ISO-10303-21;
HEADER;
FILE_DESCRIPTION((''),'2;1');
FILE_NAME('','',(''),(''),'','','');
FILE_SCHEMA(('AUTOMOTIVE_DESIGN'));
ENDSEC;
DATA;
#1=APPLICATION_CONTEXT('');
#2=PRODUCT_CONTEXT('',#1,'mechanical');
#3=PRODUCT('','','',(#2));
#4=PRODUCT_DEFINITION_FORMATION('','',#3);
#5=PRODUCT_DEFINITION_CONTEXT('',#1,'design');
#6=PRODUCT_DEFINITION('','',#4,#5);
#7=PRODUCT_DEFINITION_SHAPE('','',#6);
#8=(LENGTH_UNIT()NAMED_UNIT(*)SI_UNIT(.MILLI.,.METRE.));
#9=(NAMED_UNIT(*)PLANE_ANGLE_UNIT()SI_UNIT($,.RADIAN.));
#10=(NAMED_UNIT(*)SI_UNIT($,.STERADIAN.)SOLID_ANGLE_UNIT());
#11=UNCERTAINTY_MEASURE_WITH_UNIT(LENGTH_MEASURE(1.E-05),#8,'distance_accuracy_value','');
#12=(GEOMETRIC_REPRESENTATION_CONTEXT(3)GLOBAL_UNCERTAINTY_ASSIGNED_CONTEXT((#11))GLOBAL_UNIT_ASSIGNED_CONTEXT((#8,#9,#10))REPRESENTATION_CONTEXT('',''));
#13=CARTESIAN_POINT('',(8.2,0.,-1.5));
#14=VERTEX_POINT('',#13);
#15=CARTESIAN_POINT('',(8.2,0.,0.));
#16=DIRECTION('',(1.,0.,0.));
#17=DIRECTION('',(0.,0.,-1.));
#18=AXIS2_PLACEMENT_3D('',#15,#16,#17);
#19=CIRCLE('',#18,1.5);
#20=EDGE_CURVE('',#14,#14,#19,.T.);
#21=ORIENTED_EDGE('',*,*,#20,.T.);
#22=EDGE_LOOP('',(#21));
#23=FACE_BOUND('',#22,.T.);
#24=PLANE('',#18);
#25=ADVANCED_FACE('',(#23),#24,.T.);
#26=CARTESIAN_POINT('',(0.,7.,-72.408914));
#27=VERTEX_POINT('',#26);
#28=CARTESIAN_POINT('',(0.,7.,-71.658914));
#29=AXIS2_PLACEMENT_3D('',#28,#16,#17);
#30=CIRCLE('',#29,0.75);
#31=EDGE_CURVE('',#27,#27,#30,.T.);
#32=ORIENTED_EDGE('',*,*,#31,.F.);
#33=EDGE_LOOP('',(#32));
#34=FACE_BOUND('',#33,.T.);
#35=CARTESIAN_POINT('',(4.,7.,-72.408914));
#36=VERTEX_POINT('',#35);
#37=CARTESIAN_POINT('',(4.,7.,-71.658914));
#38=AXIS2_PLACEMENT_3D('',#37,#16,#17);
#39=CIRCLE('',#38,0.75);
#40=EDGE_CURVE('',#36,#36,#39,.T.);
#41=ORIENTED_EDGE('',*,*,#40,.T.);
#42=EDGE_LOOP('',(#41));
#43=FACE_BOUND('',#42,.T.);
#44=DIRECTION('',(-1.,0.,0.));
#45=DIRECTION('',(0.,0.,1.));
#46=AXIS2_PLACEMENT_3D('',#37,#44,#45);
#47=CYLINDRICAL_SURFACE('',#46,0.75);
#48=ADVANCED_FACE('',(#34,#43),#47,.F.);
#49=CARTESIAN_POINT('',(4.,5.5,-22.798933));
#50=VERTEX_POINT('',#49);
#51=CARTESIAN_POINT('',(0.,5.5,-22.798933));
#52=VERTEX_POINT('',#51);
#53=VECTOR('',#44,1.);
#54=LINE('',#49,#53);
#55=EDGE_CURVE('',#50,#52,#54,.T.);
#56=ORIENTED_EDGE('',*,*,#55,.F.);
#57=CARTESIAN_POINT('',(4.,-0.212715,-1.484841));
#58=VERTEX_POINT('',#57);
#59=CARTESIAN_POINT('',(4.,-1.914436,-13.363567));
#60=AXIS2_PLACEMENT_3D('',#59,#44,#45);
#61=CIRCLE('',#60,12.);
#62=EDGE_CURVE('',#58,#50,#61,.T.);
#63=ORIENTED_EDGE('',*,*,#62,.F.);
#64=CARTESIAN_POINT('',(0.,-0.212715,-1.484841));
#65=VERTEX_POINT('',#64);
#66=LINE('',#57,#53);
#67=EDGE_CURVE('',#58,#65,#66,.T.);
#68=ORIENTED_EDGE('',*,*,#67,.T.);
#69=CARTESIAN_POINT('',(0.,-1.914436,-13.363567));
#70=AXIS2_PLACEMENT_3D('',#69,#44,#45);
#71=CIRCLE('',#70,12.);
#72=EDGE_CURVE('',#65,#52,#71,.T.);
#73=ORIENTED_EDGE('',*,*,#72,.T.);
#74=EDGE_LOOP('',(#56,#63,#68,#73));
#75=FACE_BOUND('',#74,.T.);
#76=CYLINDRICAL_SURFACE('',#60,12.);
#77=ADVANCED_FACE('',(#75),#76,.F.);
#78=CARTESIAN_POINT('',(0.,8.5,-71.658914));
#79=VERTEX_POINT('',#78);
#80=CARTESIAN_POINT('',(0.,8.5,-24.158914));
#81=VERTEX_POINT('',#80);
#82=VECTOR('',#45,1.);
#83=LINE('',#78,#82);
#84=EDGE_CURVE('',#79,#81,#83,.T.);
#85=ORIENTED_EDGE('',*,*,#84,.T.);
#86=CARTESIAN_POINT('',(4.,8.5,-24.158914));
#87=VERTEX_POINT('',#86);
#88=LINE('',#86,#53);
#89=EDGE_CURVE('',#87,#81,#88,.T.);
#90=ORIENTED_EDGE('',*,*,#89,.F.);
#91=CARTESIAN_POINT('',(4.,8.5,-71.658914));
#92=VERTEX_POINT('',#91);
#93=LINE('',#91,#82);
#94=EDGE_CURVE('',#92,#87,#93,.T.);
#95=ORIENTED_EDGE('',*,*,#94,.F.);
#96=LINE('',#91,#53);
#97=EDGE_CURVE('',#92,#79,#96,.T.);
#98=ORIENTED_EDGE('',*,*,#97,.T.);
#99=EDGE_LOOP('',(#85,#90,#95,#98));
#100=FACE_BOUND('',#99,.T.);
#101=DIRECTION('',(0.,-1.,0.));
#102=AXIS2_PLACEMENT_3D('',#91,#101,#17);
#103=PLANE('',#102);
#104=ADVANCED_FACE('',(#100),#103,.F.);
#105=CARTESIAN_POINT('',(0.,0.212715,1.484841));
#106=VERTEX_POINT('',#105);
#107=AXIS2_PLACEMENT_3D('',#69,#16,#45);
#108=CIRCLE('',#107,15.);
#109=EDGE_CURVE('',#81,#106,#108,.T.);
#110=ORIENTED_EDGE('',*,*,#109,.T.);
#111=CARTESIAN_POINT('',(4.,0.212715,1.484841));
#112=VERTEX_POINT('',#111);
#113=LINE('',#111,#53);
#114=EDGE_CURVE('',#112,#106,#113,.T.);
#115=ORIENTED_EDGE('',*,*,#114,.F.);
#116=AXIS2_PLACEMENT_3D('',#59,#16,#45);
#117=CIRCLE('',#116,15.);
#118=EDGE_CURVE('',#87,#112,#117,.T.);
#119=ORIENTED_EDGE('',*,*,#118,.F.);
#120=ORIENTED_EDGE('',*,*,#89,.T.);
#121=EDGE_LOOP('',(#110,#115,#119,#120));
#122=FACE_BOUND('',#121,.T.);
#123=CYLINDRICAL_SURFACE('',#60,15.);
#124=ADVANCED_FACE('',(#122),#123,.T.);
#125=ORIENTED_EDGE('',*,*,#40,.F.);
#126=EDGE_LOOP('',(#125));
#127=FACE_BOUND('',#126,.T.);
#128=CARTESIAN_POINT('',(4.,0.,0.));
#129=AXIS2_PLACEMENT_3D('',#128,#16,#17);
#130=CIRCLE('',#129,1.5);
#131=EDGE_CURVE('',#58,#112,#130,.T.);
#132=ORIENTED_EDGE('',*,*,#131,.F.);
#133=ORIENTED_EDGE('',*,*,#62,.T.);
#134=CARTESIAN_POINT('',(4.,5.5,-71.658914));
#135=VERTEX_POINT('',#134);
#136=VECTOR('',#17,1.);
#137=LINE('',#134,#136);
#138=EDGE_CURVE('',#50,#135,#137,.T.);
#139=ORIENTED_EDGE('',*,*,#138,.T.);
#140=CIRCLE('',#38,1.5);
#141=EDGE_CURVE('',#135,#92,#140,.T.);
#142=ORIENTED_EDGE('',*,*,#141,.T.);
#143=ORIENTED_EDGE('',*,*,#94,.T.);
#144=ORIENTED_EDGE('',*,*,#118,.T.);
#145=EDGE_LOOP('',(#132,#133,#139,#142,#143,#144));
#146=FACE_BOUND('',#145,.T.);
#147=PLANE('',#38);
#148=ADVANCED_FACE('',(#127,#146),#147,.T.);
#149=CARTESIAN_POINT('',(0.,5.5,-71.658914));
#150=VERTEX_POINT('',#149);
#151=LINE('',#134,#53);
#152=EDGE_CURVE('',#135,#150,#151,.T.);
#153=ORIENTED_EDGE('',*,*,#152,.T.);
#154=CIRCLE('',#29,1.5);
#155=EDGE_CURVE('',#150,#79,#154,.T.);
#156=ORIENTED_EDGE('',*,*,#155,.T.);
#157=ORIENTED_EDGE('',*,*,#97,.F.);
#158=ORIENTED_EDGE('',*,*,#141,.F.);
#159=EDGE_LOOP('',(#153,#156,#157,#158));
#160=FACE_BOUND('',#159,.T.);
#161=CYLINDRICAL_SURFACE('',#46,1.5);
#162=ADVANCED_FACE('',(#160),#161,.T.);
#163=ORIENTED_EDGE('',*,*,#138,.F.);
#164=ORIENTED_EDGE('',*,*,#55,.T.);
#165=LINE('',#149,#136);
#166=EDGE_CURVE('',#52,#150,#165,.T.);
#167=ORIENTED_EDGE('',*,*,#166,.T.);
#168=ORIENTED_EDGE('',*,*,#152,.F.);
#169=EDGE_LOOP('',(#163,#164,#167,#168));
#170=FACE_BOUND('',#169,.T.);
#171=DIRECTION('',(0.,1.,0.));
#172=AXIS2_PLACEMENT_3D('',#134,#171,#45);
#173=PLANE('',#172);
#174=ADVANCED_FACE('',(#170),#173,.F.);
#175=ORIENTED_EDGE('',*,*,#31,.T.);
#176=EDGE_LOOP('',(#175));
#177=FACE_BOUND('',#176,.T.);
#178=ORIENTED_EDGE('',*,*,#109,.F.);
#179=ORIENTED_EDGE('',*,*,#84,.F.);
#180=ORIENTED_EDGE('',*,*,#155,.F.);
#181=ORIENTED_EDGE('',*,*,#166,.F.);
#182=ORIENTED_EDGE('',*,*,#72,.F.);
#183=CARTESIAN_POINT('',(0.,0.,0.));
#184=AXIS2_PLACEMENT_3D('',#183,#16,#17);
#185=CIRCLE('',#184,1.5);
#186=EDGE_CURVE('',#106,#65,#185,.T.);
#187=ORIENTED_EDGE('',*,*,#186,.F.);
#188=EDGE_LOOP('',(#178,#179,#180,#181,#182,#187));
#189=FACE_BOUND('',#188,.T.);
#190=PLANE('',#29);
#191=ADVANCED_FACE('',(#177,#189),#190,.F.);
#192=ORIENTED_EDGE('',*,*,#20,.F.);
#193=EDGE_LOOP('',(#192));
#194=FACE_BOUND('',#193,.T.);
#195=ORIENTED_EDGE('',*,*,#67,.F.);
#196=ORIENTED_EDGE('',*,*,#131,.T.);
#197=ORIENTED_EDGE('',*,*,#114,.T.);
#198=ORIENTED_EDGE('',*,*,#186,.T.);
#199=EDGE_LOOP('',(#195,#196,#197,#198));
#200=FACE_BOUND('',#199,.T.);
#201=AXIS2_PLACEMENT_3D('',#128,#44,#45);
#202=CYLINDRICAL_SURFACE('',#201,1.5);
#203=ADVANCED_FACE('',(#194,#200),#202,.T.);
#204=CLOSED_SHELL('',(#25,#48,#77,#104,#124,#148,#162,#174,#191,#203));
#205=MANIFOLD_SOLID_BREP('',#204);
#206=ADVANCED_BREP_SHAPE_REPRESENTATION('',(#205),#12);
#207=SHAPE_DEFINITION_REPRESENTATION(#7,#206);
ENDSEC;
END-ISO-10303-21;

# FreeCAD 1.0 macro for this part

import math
import FreeCAD as App
import Part
import Sketcher
from FreeCAD import Vector

doc = App.newDocument("Part")
body = doc.addObject("PartDesign::Body", "Body")

# Sketch on YZ plane
sketch1 = doc.addObject("Sketcher::SketchObject", "Sketch")
body.addObject(sketch1)
sketch1.AttachmentSupport = (doc.YZ_Plane, [""])
sketch1.MapMode = "FlatFace"
sketch1.addGeometry([
    Part.LineSegment(Vector(8.5, -71.7, 0), Vector(8.5, -24.2, 0)),  # 0
    Part.ArcOfCircle(Part.Circle(Vector(-1.9, -13.4, 0), Vector(0, 0, 1), 15), math.radians(-46), math.radians(82)),  # 1
    Part.ArcOfCircle(Part.Circle(Vector(0, 0, 0), Vector(0, 0, 1), 1.5), math.radians(82), math.radians(262)),  # 2
    Part.ArcOfCircle(Part.Circle(Vector(-1.9, -13.4, 0), Vector(0, 0, 1), 12), math.radians(-52), math.radians(82)),  # 3
    Part.LineSegment(Vector(5.5, -22.8, 0), Vector(5.5, -71.7, 0)),  # 4
    Part.ArcOfCircle(Part.Circle(Vector(7, -71.7, 0), Vector(0, 0, 1), 1.5), math.radians(180), math.radians(360)),  # 5
    Part.Circle(Vector(7, -71.7, 0), Vector(0, 0, 1), 0.8),  # 6
], False)
sketch1.addConstraint([
    Sketcher.Constraint("Coincident", 0, 2, 1, 1),
    Sketcher.Constraint("Tangent", 1, 2, 2, 1),
    Sketcher.Constraint("Tangent", 2, 2, 3, 2),
    Sketcher.Constraint("Coincident", 3, 1, 4, 1),
    Sketcher.Constraint("Tangent", 4, 2, 5, 1),
    Sketcher.Constraint("Tangent", 5, 2, 0, 1),
    Sketcher.Constraint("Vertical", 0),
    Sketcher.Constraint("Vertical", 4),
    Sketcher.Constraint("Coincident", 2, 3, -1, 1),
    Sketcher.Constraint("Coincident", 3, 3, 1, 3),
    Sketcher.Constraint("Coincident", 6, 3, 5, 3),
    Sketcher.Constraint("Equal", 2, 5),
    Sketcher.Constraint("Radius", 1, 15.0),
    Sketcher.Constraint("Radius", 3, 12.0),
    Sketcher.Constraint("Diameter", 6, 1.5),
    Sketcher.Constraint("DistanceY", 0, 1, 0, 2, 47.5),
    Sketcher.Constraint("DistanceX", -1, 1, 5, 3, 7.0),
    Sketcher.Constraint("DistanceY", 4, 2, 4, 1, 48.859981),
])
pad1 = doc.addObject("PartDesign::Pad", "Pad")
body.addObject(pad1)
pad1.Profile = sketch1
pad1.Length = 4

# Sketch on YZ plane
sketch2 = doc.addObject("Sketcher::SketchObject", "Sketch001")
body.addObject(sketch2)
sketch2.AttachmentSupport = (doc.YZ_Plane, [""])
sketch2.MapMode = "FlatFace"
sketch2.AttachmentOffset = App.Placement(Vector(0, 0, 4), App.Rotation())
sketch2.addGeometry(Part.Circle(Vector(0, 0, 0), Vector(0, 0, 1), 1.5), False)
sketch2.addConstraint([
    Sketcher.Constraint("Coincident", 0, 3, -1, 1),
    Sketcher.Constraint("Diameter", 0, 3.0),
])
pad2 = doc.addObject("PartDesign::Pad", "Pad001")
body.addObject(pad2)
pad2.Profile = sketch2
pad2.Length = 4.2

doc.recompute()
